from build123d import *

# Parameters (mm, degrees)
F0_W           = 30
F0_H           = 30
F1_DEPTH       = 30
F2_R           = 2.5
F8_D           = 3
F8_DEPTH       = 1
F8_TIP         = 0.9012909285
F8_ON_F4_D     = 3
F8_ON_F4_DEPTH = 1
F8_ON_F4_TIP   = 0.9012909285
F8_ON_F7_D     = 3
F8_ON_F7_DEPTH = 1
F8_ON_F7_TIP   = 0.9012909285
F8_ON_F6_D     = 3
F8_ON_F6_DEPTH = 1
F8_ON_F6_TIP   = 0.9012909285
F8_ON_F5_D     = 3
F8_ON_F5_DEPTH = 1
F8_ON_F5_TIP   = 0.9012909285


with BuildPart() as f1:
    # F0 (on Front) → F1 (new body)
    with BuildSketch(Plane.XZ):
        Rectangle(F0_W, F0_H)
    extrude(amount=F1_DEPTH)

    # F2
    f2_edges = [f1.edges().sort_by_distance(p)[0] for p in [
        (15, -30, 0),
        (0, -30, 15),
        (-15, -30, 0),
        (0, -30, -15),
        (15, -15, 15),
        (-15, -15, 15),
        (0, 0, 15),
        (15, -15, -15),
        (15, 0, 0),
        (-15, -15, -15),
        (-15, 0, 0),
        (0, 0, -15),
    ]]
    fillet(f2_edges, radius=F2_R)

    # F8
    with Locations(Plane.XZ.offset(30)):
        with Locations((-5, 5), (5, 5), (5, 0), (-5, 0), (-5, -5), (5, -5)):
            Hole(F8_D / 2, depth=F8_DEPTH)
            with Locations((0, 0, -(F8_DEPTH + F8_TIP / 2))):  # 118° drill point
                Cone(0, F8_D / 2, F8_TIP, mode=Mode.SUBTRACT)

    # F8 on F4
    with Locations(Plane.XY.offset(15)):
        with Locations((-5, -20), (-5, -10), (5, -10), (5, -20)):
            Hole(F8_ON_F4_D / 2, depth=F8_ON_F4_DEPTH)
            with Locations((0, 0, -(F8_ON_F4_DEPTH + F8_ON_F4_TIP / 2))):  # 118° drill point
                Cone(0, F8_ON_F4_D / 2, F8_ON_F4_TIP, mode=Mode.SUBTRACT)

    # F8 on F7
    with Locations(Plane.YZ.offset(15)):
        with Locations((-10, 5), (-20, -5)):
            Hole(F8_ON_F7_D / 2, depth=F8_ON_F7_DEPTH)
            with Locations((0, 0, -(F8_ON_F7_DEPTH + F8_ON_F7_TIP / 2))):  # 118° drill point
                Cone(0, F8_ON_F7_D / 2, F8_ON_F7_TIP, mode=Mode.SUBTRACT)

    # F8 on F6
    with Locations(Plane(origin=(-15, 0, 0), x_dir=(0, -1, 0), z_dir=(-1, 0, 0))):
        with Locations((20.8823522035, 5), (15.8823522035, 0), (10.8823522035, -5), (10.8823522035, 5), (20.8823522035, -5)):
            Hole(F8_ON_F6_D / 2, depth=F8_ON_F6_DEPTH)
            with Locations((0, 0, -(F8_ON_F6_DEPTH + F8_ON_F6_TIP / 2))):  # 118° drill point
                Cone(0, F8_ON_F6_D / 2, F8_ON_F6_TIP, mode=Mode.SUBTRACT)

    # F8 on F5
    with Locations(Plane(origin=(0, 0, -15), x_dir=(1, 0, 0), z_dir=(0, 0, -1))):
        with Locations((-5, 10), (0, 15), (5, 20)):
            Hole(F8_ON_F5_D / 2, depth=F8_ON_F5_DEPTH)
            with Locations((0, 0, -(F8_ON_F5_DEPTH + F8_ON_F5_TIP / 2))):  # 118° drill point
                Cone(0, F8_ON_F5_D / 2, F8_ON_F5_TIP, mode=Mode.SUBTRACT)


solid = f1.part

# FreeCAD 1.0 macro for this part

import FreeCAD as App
import Part
import Sketcher

V = App.Vector


def add_polygon(sketch, points):
    """Adds a closed chain of lines whose ends are joined by coincident constraints."""
    first, n = sketch.GeometryCount, len(points)
    for a, b in zip(points, points[1:] + points[:1]):
        sketch.addGeometry(Part.LineSegment(App.Vector(*a, 0), App.Vector(*b, 0)), False)
    for i in range(n):
        sketch.addConstraint(Sketcher.Constraint("Coincident", first + i, 2, first + (i + 1) % n, 1))

doc = App.newDocument("Part")
params = doc.addObject("Spreadsheet::Sheet", "Params")
for row, (alias, value) in enumerate([
    ("sketch1_width", "30 mm"),
    ("pad1_length", "30 mm"),
    ("fillet_radius", "2.5 mm"),
    ("sketch2_diameter", "3 mm"),
    ("hole_diameter", "3 mm"),
    ("hole_depth", "1 mm"),
    ("sketch3_diameter", "3 mm"),
    ("hole2_diameter", "3 mm"),
    ("hole2_depth", "1 mm"),
    ("sketch4_diameter", "3 mm"),
    ("hole3_diameter", "3 mm"),
    ("hole3_depth", "1 mm"),
    ("sketch5_diameter", "3 mm"),
    ("hole4_diameter", "3 mm"),
    ("hole4_depth", "1 mm"),
    ("sketch6_diameter", "3 mm"),
    ("hole5_diameter", "3 mm"),
    ("hole5_depth", "1 mm"),
], start=1):
    params.set(f"A{row}", alias)
    params.set(f"B{row}", "=" + value)
    params.setAlias(f"B{row}", alias)

body = doc.addObject("PartDesign::Body", "Body")

sketch1 = body.newObject("Sketcher::SketchObject", "Sketch")
sketch1.AttachmentSupport = (doc.getObject("XZ_Plane"), [""])
sketch1.MapMode = "FlatFace"
add_polygon(sketch1, [(-15, 15), (-15, -15), (15, -15), (15, 15)])
sketch1.addConstraint([
    Sketcher.Constraint("Vertical", 0),
    Sketcher.Constraint("Horizontal", 1),
    Sketcher.Constraint("Vertical", 2),
    Sketcher.Constraint("Horizontal", 3),
    Sketcher.Constraint("Symmetric", 0, 2, 2, 2, -1, 1),
    Sketcher.Constraint("Equal", 3, 0),
    Sketcher.Constraint("DistanceX", 1, 1, 1, 2, 30.0),
])
sketch1.setExpression("Constraints[10]", "Params.sketch1_width")
pad1 = body.newObject("PartDesign::Pad", "Pad")
pad1.Profile = sketch1
pad1.setExpression("Length", "Params.pad1_length")
doc.recompute()

fillet = body.newObject("PartDesign::Fillet", "Fillet")
fillet.Base = (pad1, ["Edge1"])
fillet.UseAllEdges = True
fillet.setExpression("Radius", "Params.fillet_radius")

sketch2 = body.newObject("Sketcher::SketchObject", "Sketch001")
sketch2.AttachmentSupport = (doc.getObject("XZ_Plane"), [""])
sketch2.MapMode = "FlatFace"
sketch2.AttachmentOffset = App.Placement(V(0, 0, 30), App.Rotation())
sketch2.addGeometry([
    Part.Circle(V(-5, 5, 0), V(0, 0, 1), 1.5),
    Part.Circle(V(5, 5, 0), V(0, 0, 1), 1.5),
    Part.Circle(V(5, 0, 0), V(0, 0, 1), 1.5),
    Part.Circle(V(-5, 0, 0), V(0, 0, 1), 1.5),
    Part.Circle(V(-5, -5, 0), V(0, 0, 1), 1.5),
    Part.Circle(V(5, -5, 0), V(0, 0, 1), 1.5),
], False)
sketch2.addConstraint([
    Sketcher.Constraint("Equal", 0, 1),
    Sketcher.Constraint("Equal", 1, 2),
    Sketcher.Constraint("Equal", 2, 3),
    Sketcher.Constraint("Equal", 3, 4),
    Sketcher.Constraint("Equal", 4, 5),
    Sketcher.Constraint("Symmetric", 2, 3, 3, 3, -1, 1),
    Sketcher.Constraint("Symmetric", 1, 3, 4, 3, -1, 1),
    Sketcher.Constraint("Symmetric", 0, 3, 5, 3, -1, 1),
    Sketcher.Constraint("Symmetric", 0, 3, 1, 3, -2),
    Sketcher.Constraint("PointOnObject", 2, 3, -1),
    Sketcher.Constraint("Vertical", 1, 3, 2, 3),
    Sketcher.Constraint("Diameter", 0, 3.0),
    Sketcher.Constraint("DistanceX", 0, 3, -1, 1, 5.0),
    Sketcher.Constraint("DistanceY", -1, 1, 0, 3, 5.0),
])
sketch2.setExpression("Constraints[11]", "Params.sketch2_diameter")
doc.recompute()
hole = body.newObject("PartDesign::Hole", "Hole")
hole.Profile = sketch2
hole.ThreadType = "None"
hole.setExpression("Diameter", "Params.hole_diameter")
hole.DepthType = "Dimension"
hole.setExpression("Depth", "Params.hole_depth")
hole.DrillPoint = "Angled"
hole.DrillPointAngle = 118

sketch3 = body.newObject("Sketcher::SketchObject", "Sketch002")
sketch3.AttachmentSupport = (doc.getObject("XY_Plane"), [""])
sketch3.MapMode = "FlatFace"
sketch3.AttachmentOffset = App.Placement(V(0, 0, 15), App.Rotation())
sketch3.addGeometry([
    Part.Circle(V(-5, -20, 0), V(0, 0, 1), 1.5),
    Part.Circle(V(-5, -10, 0), V(0, 0, 1), 1.5),
    Part.Circle(V(5, -10, 0), V(0, 0, 1), 1.5),
    Part.Circle(V(5, -20, 0), V(0, 0, 1), 1.5),
], False)
sketch3.addConstraint([
    Sketcher.Constraint("Equal", 0, 1),
    Sketcher.Constraint("Equal", 1, 2),
    Sketcher.Constraint("Equal", 2, 3),
    Sketcher.Constraint("Symmetric", 1, 3, 2, 3, -2),
    Sketcher.Constraint("Symmetric", 0, 3, 3, 3, -2),
    Sketcher.Constraint("Vertical", 0, 3, 1, 3),
    Sketcher.Constraint("Diameter", 0, 3.0),
    Sketcher.Constraint("DistanceX", 0, 3, -1, 1, 5.0),
    Sketcher.Constraint("DistanceY", 0, 3, -1, 1, 20.0),
    Sketcher.Constraint("DistanceY", 1, 3, -1, 1, 10.0),
])
sketch3.setExpression("Constraints[6]", "Params.sketch3_diameter")
doc.recompute()
hole2 = body.newObject("PartDesign::Hole", "Hole001")
hole2.Profile = sketch3
hole2.ThreadType = "None"
hole2.setExpression("Diameter", "Params.hole2_diameter")
hole2.DepthType = "Dimension"
hole2.setExpression("Depth", "Params.hole2_depth")
hole2.DrillPoint = "Angled"
hole2.DrillPointAngle = 118

sketch4 = body.newObject("Sketcher::SketchObject", "Sketch003")
sketch4.AttachmentSupport = (doc.getObject("YZ_Plane"), [""])
sketch4.MapMode = "FlatFace"
sketch4.AttachmentOffset = App.Placement(V(0, 0, 15), App.Rotation())
sketch4.addGeometry([
    Part.Circle(V(-10, 5, 0), V(0, 0, 1), 1.5),
    Part.Circle(V(-20, -5, 0), V(0, 0, 1), 1.5),
], False)
sketch4.addConstraint([
    Sketcher.Constraint("Equal", 0, 1),
    Sketcher.Constraint("Diameter", 0, 3.0),
    Sketcher.Constraint("DistanceX", 0, 3, -1, 1, 10.0),
    Sketcher.Constraint("DistanceY", -1, 1, 0, 3, 5.0),
    Sketcher.Constraint("DistanceX", 1, 3, -1, 1, 20.0),
    Sketcher.Constraint("DistanceY", 1, 3, -1, 1, 5.0),
])
sketch4.setExpression("Constraints[1]", "Params.sketch4_diameter")
doc.recompute()
hole3 = body.newObject("PartDesign::Hole", "Hole002")
hole3.Profile = sketch4
hole3.ThreadType = "None"
hole3.setExpression("Diameter", "Params.hole3_diameter")
hole3.DepthType = "Dimension"
hole3.setExpression("Depth", "Params.hole3_depth")
hole3.DrillPoint = "Angled"
hole3.DrillPointAngle = 118

sketch5 = body.newObject("Sketcher::SketchObject", "Sketch004")
sketch5.AttachmentSupport = (doc.getObject("YZ_Plane"), [""])
sketch5.MapMode = "FlatFace"
sketch5.AttachmentOffset = App.Placement(V(0, 0, -15), App.Rotation())
sketch5.addGeometry([
    Part.Circle(V(-20.882352, 5, 0), V(0, 0, 1), 1.5),
    Part.Circle(V(-15.882352, 0, 0), V(0, 0, 1), 1.5),
    Part.Circle(V(-10.882352, -5, 0), V(0, 0, 1), 1.5),
    Part.Circle(V(-10.882352, 5, 0), V(0, 0, 1), 1.5),
    Part.Circle(V(-20.882352, -5, 0), V(0, 0, 1), 1.5),
], False)
sketch5.addConstraint([
    Sketcher.Constraint("Equal", 0, 1),
    Sketcher.Constraint("Equal", 1, 2),
    Sketcher.Constraint("Equal", 2, 3),
    Sketcher.Constraint("Equal", 3, 4),
    Sketcher.Constraint("Symmetric", 2, 3, 3, 3, -1),
    Sketcher.Constraint("Symmetric", 0, 3, 4, 3, -1),
    Sketcher.Constraint("PointOnObject", 1, 3, -1),
    Sketcher.Constraint("Horizontal", 0, 3, 3, 3),
    Sketcher.Constraint("Diameter", 0, 3.0),
    Sketcher.Constraint("DistanceY", -1, 1, 0, 3, 5.0),
    Sketcher.Constraint("DistanceX", 0, 3, 1, 3, 5.0),
    Sketcher.Constraint("DistanceX", 1, 3, 2, 3, 5.0),
    Sketcher.Constraint("DistanceX", 0, 3, -1, 1, 20.882352),
])
sketch5.setExpression("Constraints[8]", "Params.sketch5_diameter")
doc.recompute()
hole4 = body.newObject("PartDesign::Hole", "Hole003")
hole4.Profile = sketch5
hole4.ThreadType = "None"
hole4.setExpression("Diameter", "Params.hole4_diameter")
hole4.DepthType = "Dimension"
hole4.setExpression("Depth", "Params.hole4_depth")
hole4.DrillPoint = "Angled"
hole4.DrillPointAngle = 118
hole4.Reversed = True

sketch6 = body.newObject("Sketcher::SketchObject", "Sketch005")
sketch6.AttachmentSupport = (doc.getObject("XY_Plane"), [""])
sketch6.MapMode = "FlatFace"
sketch6.AttachmentOffset = App.Placement(V(0, 0, -15), App.Rotation())
sketch6.addGeometry([
    Part.Circle(V(-5, -10, 0), V(0, 0, 1), 1.5),
    Part.Circle(V(0, -15, 0), V(0, 0, 1), 1.5),
    Part.Circle(V(5, -20, 0), V(0, 0, 1), 1.5),
], False)
sketch6.addConstraint([
    Sketcher.Constraint("Equal", 0, 1),
    Sketcher.Constraint("Equal", 1, 2),
    Sketcher.Constraint("PointOnObject", 1, 3, -2),
    Sketcher.Constraint("Diameter", 0, 3.0),
    Sketcher.Constraint("DistanceX", 0, 3, -1, 1, 5.0),
    Sketcher.Constraint("DistanceY", 0, 3, -1, 1, 10.0),
    Sketcher.Constraint("DistanceY", 1, 3, -1, 1, 15.0),
    Sketcher.Constraint("DistanceX", -1, 1, 2, 3, 5.0),
    Sketcher.Constraint("DistanceY", 2, 3, -1, 1, 20.0),
])
sketch6.setExpression("Constraints[3]", "Params.sketch6_diameter")
doc.recompute()
hole5 = body.newObject("PartDesign::Hole", "Hole004")
hole5.Profile = sketch6
hole5.ThreadType = "None"
hole5.setExpression("Diameter", "Params.hole5_diameter")
hole5.DepthType = "Dimension"
hole5.setExpression("Depth", "Params.hole5_depth")
hole5.DrillPoint = "Angled"
hole5.DrillPointAngle = 118
hole5.Reversed = True

doc.recompute()
